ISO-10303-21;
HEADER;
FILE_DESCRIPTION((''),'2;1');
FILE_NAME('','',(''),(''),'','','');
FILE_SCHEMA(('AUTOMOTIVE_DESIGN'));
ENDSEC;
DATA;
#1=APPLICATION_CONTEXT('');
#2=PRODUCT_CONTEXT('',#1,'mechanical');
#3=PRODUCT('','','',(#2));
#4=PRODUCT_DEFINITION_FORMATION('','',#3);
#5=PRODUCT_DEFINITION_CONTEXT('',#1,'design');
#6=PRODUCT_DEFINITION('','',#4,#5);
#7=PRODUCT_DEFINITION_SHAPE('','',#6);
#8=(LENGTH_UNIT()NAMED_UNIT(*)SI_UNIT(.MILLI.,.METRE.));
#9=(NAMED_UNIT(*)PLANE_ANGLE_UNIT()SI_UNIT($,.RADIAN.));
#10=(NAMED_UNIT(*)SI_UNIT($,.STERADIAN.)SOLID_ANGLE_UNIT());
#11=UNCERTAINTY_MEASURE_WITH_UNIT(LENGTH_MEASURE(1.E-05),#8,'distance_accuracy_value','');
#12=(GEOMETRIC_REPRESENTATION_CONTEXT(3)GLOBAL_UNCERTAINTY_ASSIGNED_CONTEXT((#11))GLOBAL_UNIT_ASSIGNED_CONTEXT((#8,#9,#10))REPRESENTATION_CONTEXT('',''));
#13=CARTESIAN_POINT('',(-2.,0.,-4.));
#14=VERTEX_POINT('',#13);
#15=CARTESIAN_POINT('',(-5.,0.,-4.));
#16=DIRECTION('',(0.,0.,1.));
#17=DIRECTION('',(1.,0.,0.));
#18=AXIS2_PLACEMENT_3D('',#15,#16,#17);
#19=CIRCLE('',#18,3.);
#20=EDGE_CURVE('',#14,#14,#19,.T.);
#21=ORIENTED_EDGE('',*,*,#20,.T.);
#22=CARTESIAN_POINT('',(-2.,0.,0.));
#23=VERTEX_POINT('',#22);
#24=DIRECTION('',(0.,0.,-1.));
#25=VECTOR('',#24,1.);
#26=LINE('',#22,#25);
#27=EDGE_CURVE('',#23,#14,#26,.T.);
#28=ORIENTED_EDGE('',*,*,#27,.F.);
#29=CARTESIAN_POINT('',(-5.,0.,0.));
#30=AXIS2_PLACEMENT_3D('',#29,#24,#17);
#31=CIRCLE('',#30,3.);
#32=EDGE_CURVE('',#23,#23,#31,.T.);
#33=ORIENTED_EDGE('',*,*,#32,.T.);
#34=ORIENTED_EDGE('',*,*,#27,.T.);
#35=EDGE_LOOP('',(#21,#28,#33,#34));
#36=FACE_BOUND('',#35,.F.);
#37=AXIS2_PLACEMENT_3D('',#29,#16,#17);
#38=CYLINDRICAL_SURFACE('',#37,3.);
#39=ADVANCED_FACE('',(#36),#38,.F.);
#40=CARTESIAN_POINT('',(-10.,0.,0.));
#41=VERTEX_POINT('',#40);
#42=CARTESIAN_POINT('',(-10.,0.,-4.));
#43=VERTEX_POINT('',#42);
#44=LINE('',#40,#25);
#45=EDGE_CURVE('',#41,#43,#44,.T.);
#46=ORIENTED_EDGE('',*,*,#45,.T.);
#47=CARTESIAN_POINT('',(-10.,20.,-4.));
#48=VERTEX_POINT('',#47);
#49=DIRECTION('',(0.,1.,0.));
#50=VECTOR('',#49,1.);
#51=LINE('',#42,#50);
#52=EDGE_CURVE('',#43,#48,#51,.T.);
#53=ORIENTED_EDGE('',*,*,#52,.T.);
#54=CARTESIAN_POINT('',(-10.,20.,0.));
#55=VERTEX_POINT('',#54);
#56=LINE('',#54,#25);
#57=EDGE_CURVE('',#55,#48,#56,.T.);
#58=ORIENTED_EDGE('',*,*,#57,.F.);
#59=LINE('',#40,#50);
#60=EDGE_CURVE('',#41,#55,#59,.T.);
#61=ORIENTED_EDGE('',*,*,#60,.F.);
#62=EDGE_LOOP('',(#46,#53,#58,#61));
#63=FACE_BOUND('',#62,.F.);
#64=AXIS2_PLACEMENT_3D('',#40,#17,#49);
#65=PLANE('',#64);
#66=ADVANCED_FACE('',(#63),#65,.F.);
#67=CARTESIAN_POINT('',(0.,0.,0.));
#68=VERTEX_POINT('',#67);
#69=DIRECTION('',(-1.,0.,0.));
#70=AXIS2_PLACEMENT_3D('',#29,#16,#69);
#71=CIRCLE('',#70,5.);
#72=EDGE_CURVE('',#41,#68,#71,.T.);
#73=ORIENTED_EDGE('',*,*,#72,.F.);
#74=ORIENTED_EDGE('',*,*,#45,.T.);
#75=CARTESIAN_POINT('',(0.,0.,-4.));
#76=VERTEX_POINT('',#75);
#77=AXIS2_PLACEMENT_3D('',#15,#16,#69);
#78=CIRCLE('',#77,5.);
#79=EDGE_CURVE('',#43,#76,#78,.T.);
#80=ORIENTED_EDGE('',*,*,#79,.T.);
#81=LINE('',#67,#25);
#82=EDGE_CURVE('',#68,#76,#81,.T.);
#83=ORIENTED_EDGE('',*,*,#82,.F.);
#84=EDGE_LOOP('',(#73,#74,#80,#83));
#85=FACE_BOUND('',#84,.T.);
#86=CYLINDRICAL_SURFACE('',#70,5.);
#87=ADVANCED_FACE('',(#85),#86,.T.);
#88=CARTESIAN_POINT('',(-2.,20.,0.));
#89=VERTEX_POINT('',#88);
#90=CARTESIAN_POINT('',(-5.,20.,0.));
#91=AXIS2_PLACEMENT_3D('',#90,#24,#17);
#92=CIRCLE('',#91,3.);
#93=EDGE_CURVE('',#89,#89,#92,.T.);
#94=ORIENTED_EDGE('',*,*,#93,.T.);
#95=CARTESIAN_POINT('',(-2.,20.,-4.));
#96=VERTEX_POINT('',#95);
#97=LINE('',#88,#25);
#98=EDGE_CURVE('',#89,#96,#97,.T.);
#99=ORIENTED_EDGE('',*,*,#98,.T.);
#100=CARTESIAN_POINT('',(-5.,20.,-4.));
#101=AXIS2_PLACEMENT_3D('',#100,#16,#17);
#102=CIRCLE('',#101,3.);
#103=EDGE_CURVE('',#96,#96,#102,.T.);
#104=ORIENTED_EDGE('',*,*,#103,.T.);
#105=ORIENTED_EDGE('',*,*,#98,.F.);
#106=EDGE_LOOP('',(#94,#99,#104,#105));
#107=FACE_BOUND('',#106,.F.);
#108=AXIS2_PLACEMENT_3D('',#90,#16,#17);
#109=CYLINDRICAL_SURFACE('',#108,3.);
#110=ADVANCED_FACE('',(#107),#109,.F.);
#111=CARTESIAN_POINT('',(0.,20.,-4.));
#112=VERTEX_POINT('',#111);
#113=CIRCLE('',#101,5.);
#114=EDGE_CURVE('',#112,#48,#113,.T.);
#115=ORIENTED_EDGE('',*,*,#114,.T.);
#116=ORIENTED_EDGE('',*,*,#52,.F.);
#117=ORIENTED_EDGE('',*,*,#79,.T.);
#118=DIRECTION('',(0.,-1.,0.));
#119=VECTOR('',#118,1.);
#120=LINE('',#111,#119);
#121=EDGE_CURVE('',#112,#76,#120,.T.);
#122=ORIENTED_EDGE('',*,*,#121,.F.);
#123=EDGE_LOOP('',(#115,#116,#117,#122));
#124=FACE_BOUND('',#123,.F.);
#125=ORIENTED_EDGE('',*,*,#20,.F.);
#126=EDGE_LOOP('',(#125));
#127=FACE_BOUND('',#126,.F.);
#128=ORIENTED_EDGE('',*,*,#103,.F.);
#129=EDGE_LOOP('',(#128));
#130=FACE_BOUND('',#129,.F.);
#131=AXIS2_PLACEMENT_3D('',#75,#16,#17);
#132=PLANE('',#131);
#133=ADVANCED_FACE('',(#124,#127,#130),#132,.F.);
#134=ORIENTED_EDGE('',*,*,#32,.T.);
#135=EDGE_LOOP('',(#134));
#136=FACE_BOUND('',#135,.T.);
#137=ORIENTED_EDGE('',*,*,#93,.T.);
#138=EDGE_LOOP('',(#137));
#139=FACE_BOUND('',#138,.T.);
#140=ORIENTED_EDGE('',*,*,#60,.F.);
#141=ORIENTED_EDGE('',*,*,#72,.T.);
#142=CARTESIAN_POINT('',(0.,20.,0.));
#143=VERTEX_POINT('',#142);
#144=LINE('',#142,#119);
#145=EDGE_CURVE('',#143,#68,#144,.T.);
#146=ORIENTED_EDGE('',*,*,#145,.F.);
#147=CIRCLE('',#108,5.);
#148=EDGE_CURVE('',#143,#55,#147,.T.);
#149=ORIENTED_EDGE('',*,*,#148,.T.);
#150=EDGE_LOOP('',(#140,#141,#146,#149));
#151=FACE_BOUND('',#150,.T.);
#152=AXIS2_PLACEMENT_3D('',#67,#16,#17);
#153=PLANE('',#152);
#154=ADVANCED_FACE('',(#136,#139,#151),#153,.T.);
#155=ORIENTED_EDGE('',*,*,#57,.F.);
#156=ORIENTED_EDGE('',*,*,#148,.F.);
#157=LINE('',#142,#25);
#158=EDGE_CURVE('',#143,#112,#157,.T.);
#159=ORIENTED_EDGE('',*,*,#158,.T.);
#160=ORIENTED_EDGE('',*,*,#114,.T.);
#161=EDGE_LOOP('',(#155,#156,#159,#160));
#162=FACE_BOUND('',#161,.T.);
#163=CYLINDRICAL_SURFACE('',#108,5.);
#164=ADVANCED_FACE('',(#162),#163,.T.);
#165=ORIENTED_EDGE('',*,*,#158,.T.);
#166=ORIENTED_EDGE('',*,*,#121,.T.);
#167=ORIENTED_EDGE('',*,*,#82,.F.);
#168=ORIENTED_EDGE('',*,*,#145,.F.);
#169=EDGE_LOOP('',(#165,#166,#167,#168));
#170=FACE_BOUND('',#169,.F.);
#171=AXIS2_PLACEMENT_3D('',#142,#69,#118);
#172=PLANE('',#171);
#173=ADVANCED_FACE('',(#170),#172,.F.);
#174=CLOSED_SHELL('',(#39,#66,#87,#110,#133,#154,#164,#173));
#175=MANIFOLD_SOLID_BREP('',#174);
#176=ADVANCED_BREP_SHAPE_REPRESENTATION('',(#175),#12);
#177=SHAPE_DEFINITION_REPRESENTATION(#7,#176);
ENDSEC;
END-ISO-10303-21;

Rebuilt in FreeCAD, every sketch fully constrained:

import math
import FreeCAD as App
import Part
import Sketcher

V = App.Vector

doc = App.newDocument("Part")
body = doc.addObject("PartDesign::Body", "Body")

sketch1 = doc.addObject("Sketcher::SketchObject", "Sketch")
body.addObject(sketch1)
sketch1.AttachmentSupport = (doc.XY_Plane, [""])
sketch1.MapMode = "FlatFace"
sketch1.addGeometry([
    Part.ArcOfCircle(Part.Circle(V(-5, 0, 0), V(0, 0, 1), 5), math.radians(180), math.radians(360)),
    Part.LineSegment(V(0, 0, 0), V(0, 20, 0)),
    Part.ArcOfCircle(Part.Circle(V(-5, 20, 0), V(0, 0, 1), 5), math.radians(0), math.radians(180)),
    Part.LineSegment(V(-10, 20, 0), V(-10, 0, 0)),
    Part.Circle(V(-5, 0, 0), V(0, 0, 1), 3),
    Part.Circle(V(-5, 20, 0), V(0, 0, 1), 3),
], False)
sketch1.addConstraint([
    Sketcher.Constraint("Tangent", 0, 2, 1, 1),
    Sketcher.Constraint("Tangent", 1, 2, 2, 1),
    Sketcher.Constraint("Tangent", 2, 2, 3, 1),
    Sketcher.Constraint("Tangent", 3, 2, 0, 1),
    Sketcher.Constraint("Vertical", 1),
    Sketcher.Constraint("Vertical", 3),
    Sketcher.Constraint("Coincident", 0, 2, -1, 1),
    Sketcher.Constraint("Coincident", 4, 3, 0, 3),
    Sketcher.Constraint("Coincident", 5, 3, 2, 3),
    Sketcher.Constraint("Equal", 4, 5),
    Sketcher.Constraint("Diameter", 4, 6.0),
    Sketcher.Constraint("Radius", 0, 5.0),
    Sketcher.Constraint("DistanceY", 1, 1, 1, 2, 20.0),
])
pad1 = doc.addObject("PartDesign::Pad", "Pad")
body.addObject(pad1)
pad1.Profile = sketch1
pad1.Length = 4
pad1.Reversed = True

doc.recompute()
